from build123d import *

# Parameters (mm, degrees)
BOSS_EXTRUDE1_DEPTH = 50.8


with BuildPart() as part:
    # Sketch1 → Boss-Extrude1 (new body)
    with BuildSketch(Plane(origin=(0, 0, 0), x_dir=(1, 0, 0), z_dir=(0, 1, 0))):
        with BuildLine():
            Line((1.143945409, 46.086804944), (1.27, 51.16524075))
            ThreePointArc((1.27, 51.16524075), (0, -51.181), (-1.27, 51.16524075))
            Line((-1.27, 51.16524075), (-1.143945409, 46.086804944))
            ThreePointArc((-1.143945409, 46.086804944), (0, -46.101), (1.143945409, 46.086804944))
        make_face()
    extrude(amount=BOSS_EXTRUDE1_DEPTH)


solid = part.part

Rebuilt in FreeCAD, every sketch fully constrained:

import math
import FreeCAD as App
import Part
import Sketcher
Q = App.Units.Quantity

doc = App.newDocument("Part")
body = doc.addObject("PartDesign::Body", "Body")

# Sketch on XZ plane
sketch1 = body.newObject("Sketcher::SketchObject", "Sketch")
sketch1.AttachmentSupport = (doc.getObject("XZ_Plane"), [""])
sketch1.MapMode = "FlatFace"
sketch1.addGeometry([
    Part.LineSegment(App.Vector(1.3, -51.2, 0), App.Vector(1.1, -46.1, 0)),
    Part.ArcOfCircle(Part.Circle(App.Vector(0, 0, 0), App.Vector(0, 0, 1), 46.1), math.radians(-89), math.radians(269)),
    Part.LineSegment(App.Vector(-1.1, -46.1, 0), App.Vector(-1.3, -51.2, 0)),
    Part.ArcOfCircle(Part.Circle(App.Vector(0, 0, 0), App.Vector(0, 0, 1), 51.2), math.radians(-89), math.radians(269)),
], False)
sketch1.addConstraint([
    Sketcher.Constraint("Coincident", 0, 2, 1, 1),
    Sketcher.Constraint("Coincident", 1, 2, 2, 1),
    Sketcher.Constraint("Coincident", 2, 2, 3, 2),
    Sketcher.Constraint("Coincident", 3, 1, 0, 1),
    Sketcher.Constraint("Coincident", 1, 3, -1, 1),
    Sketcher.Constraint("Coincident", 3, 3, -1, 1),
    Sketcher.Constraint("Horizontal", 0, 2, 1, 2),
    Sketcher.Constraint("Horizontal", 2, 2, 3, 1),
    Sketcher.Constraint("Radius", 1, Q("1.815 in")),
    Sketcher.Constraint("Radius", 3, Q("2.015 in")),
    Sketcher.Constraint("DistanceX", 2, 2, 3, 1, Q("0.1 in")),
    Sketcher.Constraint("DistanceX", 1, 2, 0, 2, Q("2.287891 mm")),
])
pad1 = body.newObject("PartDesign::Pad", "Pad")
pad1.Profile = sketch1
pad1.Length = Q("2 in")
pad1.Reversed = True

doc.recompute()
